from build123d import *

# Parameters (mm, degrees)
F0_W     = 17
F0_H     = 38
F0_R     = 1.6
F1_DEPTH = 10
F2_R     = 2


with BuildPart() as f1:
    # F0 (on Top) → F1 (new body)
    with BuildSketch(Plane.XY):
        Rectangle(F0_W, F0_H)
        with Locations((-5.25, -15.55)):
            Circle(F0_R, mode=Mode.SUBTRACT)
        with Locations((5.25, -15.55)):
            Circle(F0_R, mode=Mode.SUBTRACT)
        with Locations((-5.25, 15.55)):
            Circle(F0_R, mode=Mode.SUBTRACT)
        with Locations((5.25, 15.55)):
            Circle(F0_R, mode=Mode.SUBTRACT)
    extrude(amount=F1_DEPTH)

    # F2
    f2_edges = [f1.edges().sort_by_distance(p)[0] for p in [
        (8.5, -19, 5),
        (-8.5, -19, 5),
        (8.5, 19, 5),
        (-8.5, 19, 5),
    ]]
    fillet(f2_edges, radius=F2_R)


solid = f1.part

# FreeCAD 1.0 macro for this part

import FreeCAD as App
import Part
import Sketcher

V = App.Vector
Q = App.Units.Quantity


def edges_at(feature, points):
    """Names of the edges that pass closest to the given points."""
    edges = feature.Shape.Edges
    near = lambda p: min(range(len(edges)), key=lambda i: edges[i].distToShape(Part.Vertex(*p))[0])
    return sorted({f"Edge{near(p) + 1}" for p in points})

doc = App.newDocument("Part")
params = doc.addObject("Spreadsheet::Sheet", "Params")
for row, (alias, value) in enumerate([
    ("sketch1_diameter", "3.2 mm"),
    ("sketch1_width", "17 mm"),
    ("sketch1_height", "38 mm"),
    ("pad1_length", "10 mm"),
    ("fillet_radius", "2 mm"),
], start=1):
    params.set(f"A{row}", alias)
    params.set(f"B{row}", "=" + value)
    params.setAlias(f"B{row}", alias)

body = doc.addObject("PartDesign::Body", "Body")

# Sketch on XY plane
sketch1 = body.newObject("Sketcher::SketchObject", "Sketch")
sketch1.AttachmentSupport = (doc.getObject("XY_Plane"), [""])
sketch1.MapMode = "FlatFace"
sketch1.addGeometry(Part.LineSegment(V(-8.5, 19, 0), V(-8.5, -19, 0)), False)
sketch1.addGeometry(Part.LineSegment(V(-8.5, -19, 0), V(8.5, -19, 0)), False)
sketch1.addGeometry(Part.LineSegment(V(8.5, -19, 0), V(8.5, 19, 0)), False)
sketch1.addGeometry(Part.LineSegment(V(8.5, 19, 0), V(-8.5, 19, 0)), False)
sketch1.addGeometry(Part.Circle(V(-5.2, -15.6, 0), V(0, 0, 1), 1.6), False)
sketch1.addGeometry(Part.Circle(V(5.2, -15.6, 0), V(0, 0, 1), 1.6), False)
sketch1.addGeometry(Part.Circle(V(-5.2, 15.6, 0), V(0, 0, 1), 1.6), False)
sketch1.addGeometry(Part.Circle(V(5.2, 15.6, 0), V(0, 0, 1), 1.6), False)
sketch1.addConstraint(Sketcher.Constraint("Coincident", 0, 2, 1, 1))
sketch1.addConstraint(Sketcher.Constraint("Coincident", 1, 2, 2, 1))
sketch1.addConstraint(Sketcher.Constraint("Coincident", 2, 2, 3, 1))
sketch1.addConstraint(Sketcher.Constraint("Coincident", 3, 2, 0, 1))
sketch1.addConstraint(Sketcher.Constraint("Vertical", 0))
sketch1.addConstraint(Sketcher.Constraint("Horizontal", 1))
sketch1.addConstraint(Sketcher.Constraint("Vertical", 2))
sketch1.addConstraint(Sketcher.Constraint("Horizontal", 3))
sketch1.addConstraint(Sketcher.Constraint("Equal", 4, 5))
sketch1.addConstraint(Sketcher.Constraint("Equal", 5, 6))
sketch1.addConstraint(Sketcher.Constraint("Equal", 6, 7))
sketch1.addConstraint(Sketcher.Constraint("Symmetric", 5, 3, 6, 3, -1, 1))
sketch1.addConstraint(Sketcher.Constraint("Symmetric", 4, 3, 7, 3, -1, 1))
sketch1.addConstraint(Sketcher.Constraint("Symmetric", 0, 2, 2, 2, -1, 1))
sketch1.addConstraint(Sketcher.Constraint("Symmetric", 4, 3, 5, 3, -2))
sketch1.addConstraint(Sketcher.Constraint("Diameter", 4, Q("3.2 mm")))
sketch1.addConstraint(Sketcher.Constraint("DistanceX", 1, 1, 1, 2, Q("17 mm")))
sketch1.addConstraint(Sketcher.Constraint("DistanceY", 0, 2, 0, 1, Q("38 mm")))
sketch1.addConstraint(Sketcher.Constraint("DistanceX", 4, 3, 5, 3, Q("10.5 mm")))
sketch1.addConstraint(Sketcher.Constraint("DistanceY", 4, 3, 6, 3, Q("31.1 mm")))
sketch1.setExpression("Constraints[15]", "Params.sketch1_diameter")
sketch1.setExpression("Constraints[16]", "Params.sketch1_width")
sketch1.setExpression("Constraints[17]", "Params.sketch1_height")
pad1 = body.newObject("PartDesign::Pad", "Pad")
pad1.Profile = sketch1
pad1.setExpression("Length", "Params.pad1_length")
doc.recompute()

fillet = body.newObject("PartDesign::Fillet", "Fillet")
fillet.Base = (pad1, edges_at(pad1, [
    (8.5, -19, 5),
    (-8.5, -19, 5),
    (8.5, 19, 5),
    (-8.5, 19, 5),
]))
fillet.setExpression("Radius", "Params.fillet_radius")

doc.recompute()
